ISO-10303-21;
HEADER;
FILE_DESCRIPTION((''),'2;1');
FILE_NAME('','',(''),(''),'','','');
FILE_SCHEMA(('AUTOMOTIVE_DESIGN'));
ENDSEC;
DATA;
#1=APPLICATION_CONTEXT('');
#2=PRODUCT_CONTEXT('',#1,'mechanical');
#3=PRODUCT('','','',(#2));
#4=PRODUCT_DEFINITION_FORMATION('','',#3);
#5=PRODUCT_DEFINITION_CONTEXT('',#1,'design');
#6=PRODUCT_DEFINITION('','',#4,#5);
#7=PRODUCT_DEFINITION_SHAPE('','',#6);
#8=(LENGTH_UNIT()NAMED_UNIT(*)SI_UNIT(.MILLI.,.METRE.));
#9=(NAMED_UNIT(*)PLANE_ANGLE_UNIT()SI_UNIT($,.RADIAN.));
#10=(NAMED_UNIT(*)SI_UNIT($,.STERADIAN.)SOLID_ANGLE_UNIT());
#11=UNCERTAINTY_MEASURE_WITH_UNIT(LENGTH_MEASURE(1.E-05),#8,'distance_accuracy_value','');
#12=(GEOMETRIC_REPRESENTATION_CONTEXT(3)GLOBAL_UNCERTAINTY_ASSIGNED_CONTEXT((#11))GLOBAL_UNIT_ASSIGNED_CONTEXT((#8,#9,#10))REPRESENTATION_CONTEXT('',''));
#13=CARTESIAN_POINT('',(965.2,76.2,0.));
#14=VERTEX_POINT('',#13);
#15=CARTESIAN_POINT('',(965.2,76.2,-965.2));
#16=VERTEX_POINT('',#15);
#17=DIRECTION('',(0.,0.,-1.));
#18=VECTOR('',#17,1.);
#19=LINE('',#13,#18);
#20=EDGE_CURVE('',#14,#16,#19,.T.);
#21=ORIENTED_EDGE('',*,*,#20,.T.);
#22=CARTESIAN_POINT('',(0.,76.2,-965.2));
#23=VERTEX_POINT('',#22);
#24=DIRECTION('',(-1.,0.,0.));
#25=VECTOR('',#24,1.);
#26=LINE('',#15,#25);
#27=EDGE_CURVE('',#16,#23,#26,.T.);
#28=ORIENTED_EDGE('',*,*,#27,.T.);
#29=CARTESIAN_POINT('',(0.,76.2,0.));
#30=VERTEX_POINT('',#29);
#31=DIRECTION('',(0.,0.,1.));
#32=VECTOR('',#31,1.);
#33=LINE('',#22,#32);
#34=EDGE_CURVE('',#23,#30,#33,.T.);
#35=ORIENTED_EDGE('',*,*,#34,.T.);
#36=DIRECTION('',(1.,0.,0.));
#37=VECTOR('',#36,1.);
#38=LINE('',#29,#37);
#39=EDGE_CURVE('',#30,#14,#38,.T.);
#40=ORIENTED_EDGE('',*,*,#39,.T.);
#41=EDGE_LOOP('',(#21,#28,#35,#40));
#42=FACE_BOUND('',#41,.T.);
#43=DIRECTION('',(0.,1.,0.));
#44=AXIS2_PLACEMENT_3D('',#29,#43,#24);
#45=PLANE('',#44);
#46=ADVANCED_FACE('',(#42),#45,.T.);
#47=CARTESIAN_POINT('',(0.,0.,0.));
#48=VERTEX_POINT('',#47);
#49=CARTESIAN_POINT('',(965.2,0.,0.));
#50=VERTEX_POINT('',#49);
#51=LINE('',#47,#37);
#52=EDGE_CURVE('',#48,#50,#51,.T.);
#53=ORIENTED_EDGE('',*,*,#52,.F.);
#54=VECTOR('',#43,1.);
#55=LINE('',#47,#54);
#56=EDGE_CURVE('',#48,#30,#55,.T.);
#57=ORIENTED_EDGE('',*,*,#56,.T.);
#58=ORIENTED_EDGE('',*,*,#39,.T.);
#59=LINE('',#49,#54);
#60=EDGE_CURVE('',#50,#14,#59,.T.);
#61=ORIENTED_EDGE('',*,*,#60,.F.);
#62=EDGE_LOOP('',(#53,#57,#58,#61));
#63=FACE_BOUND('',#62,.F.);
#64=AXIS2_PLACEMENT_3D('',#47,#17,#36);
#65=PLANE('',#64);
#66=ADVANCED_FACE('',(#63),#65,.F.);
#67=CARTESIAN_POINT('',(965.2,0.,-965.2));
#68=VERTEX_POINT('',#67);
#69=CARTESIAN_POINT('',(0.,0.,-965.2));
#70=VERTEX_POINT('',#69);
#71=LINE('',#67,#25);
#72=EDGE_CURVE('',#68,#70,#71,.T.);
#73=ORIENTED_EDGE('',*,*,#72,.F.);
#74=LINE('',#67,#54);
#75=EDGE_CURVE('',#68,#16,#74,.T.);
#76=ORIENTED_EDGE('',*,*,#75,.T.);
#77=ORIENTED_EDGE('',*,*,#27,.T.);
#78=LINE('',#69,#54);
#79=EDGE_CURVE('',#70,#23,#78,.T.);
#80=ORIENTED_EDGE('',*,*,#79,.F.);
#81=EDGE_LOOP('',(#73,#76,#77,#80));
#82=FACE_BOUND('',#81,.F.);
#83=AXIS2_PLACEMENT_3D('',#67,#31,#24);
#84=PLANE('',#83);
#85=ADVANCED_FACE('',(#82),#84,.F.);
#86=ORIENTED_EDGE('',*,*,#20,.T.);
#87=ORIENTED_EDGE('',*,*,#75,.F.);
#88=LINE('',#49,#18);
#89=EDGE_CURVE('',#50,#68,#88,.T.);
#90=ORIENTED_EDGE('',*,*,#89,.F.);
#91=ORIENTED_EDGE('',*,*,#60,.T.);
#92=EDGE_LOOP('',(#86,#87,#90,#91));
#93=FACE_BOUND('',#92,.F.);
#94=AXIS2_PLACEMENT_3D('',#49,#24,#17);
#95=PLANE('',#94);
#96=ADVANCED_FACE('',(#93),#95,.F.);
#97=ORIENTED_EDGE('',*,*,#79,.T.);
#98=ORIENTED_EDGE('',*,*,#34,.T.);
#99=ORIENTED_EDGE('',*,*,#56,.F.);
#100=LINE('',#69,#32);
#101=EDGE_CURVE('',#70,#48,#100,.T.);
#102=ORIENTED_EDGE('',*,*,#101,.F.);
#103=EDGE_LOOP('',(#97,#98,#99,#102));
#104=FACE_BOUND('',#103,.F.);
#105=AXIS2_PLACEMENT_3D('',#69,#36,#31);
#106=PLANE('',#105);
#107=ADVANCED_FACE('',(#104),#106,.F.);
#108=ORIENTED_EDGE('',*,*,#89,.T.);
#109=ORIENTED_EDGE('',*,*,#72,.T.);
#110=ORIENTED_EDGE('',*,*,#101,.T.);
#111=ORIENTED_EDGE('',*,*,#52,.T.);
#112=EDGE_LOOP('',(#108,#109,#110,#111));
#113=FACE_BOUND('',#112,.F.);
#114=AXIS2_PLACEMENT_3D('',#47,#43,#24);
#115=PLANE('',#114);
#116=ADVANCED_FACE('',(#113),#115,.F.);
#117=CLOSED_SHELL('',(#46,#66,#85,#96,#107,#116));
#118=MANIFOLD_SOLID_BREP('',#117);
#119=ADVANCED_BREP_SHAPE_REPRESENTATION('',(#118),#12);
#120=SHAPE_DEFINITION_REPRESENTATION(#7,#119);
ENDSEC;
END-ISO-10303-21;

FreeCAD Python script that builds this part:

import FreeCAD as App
import Part
import Sketcher

V = App.Vector
Q = App.Units.Quantity

doc = App.newDocument("Part")
body = doc.addObject("PartDesign::Body", "Body")

# Sketch on XZ plane
sketch1 = doc.addObject("Sketcher::SketchObject", "Sketch")
body.addObject(sketch1)
sketch1.AttachmentSupport = (doc.XZ_Plane, [""])
sketch1.MapMode = "FlatFace"
sketch1.addGeometry([
    Part.LineSegment(V(0, -965.2, 0), V(0, 0, 0)),
    Part.LineSegment(V(0, 0, 0), V(965.2, 0, 0)),
    Part.LineSegment(V(965.2, 0, 0), V(965.2, -965.2, 0)),
    Part.LineSegment(V(965.2, -965.2, 0), V(0, -965.2, 0)),
], False)
sketch1.addConstraint([
    Sketcher.Constraint("Coincident", 0, 2, 1, 1),
    Sketcher.Constraint("Coincident", 1, 2, 2, 1),
    Sketcher.Constraint("Coincident", 2, 2, 3, 1),
    Sketcher.Constraint("Coincident", 3, 2, 0, 1),
    Sketcher.Constraint("Vertical", 0),
    Sketcher.Constraint("Horizontal", 1),
    Sketcher.Constraint("Vertical", 2),
    Sketcher.Constraint("Horizontal", 3),
    Sketcher.Constraint("Coincident", 0, 2, -1, 1),
    Sketcher.Constraint("Equal", 3, 0),
    Sketcher.Constraint("DistanceX", 1, 1, 1, 2, Q("38 in")),
])
pad1 = doc.addObject("PartDesign::Pad", "Pad")
body.addObject(pad1)
pad1.Profile = sketch1
pad1.Length = Q("3 in")
pad1.Reversed = True

doc.recompute()
